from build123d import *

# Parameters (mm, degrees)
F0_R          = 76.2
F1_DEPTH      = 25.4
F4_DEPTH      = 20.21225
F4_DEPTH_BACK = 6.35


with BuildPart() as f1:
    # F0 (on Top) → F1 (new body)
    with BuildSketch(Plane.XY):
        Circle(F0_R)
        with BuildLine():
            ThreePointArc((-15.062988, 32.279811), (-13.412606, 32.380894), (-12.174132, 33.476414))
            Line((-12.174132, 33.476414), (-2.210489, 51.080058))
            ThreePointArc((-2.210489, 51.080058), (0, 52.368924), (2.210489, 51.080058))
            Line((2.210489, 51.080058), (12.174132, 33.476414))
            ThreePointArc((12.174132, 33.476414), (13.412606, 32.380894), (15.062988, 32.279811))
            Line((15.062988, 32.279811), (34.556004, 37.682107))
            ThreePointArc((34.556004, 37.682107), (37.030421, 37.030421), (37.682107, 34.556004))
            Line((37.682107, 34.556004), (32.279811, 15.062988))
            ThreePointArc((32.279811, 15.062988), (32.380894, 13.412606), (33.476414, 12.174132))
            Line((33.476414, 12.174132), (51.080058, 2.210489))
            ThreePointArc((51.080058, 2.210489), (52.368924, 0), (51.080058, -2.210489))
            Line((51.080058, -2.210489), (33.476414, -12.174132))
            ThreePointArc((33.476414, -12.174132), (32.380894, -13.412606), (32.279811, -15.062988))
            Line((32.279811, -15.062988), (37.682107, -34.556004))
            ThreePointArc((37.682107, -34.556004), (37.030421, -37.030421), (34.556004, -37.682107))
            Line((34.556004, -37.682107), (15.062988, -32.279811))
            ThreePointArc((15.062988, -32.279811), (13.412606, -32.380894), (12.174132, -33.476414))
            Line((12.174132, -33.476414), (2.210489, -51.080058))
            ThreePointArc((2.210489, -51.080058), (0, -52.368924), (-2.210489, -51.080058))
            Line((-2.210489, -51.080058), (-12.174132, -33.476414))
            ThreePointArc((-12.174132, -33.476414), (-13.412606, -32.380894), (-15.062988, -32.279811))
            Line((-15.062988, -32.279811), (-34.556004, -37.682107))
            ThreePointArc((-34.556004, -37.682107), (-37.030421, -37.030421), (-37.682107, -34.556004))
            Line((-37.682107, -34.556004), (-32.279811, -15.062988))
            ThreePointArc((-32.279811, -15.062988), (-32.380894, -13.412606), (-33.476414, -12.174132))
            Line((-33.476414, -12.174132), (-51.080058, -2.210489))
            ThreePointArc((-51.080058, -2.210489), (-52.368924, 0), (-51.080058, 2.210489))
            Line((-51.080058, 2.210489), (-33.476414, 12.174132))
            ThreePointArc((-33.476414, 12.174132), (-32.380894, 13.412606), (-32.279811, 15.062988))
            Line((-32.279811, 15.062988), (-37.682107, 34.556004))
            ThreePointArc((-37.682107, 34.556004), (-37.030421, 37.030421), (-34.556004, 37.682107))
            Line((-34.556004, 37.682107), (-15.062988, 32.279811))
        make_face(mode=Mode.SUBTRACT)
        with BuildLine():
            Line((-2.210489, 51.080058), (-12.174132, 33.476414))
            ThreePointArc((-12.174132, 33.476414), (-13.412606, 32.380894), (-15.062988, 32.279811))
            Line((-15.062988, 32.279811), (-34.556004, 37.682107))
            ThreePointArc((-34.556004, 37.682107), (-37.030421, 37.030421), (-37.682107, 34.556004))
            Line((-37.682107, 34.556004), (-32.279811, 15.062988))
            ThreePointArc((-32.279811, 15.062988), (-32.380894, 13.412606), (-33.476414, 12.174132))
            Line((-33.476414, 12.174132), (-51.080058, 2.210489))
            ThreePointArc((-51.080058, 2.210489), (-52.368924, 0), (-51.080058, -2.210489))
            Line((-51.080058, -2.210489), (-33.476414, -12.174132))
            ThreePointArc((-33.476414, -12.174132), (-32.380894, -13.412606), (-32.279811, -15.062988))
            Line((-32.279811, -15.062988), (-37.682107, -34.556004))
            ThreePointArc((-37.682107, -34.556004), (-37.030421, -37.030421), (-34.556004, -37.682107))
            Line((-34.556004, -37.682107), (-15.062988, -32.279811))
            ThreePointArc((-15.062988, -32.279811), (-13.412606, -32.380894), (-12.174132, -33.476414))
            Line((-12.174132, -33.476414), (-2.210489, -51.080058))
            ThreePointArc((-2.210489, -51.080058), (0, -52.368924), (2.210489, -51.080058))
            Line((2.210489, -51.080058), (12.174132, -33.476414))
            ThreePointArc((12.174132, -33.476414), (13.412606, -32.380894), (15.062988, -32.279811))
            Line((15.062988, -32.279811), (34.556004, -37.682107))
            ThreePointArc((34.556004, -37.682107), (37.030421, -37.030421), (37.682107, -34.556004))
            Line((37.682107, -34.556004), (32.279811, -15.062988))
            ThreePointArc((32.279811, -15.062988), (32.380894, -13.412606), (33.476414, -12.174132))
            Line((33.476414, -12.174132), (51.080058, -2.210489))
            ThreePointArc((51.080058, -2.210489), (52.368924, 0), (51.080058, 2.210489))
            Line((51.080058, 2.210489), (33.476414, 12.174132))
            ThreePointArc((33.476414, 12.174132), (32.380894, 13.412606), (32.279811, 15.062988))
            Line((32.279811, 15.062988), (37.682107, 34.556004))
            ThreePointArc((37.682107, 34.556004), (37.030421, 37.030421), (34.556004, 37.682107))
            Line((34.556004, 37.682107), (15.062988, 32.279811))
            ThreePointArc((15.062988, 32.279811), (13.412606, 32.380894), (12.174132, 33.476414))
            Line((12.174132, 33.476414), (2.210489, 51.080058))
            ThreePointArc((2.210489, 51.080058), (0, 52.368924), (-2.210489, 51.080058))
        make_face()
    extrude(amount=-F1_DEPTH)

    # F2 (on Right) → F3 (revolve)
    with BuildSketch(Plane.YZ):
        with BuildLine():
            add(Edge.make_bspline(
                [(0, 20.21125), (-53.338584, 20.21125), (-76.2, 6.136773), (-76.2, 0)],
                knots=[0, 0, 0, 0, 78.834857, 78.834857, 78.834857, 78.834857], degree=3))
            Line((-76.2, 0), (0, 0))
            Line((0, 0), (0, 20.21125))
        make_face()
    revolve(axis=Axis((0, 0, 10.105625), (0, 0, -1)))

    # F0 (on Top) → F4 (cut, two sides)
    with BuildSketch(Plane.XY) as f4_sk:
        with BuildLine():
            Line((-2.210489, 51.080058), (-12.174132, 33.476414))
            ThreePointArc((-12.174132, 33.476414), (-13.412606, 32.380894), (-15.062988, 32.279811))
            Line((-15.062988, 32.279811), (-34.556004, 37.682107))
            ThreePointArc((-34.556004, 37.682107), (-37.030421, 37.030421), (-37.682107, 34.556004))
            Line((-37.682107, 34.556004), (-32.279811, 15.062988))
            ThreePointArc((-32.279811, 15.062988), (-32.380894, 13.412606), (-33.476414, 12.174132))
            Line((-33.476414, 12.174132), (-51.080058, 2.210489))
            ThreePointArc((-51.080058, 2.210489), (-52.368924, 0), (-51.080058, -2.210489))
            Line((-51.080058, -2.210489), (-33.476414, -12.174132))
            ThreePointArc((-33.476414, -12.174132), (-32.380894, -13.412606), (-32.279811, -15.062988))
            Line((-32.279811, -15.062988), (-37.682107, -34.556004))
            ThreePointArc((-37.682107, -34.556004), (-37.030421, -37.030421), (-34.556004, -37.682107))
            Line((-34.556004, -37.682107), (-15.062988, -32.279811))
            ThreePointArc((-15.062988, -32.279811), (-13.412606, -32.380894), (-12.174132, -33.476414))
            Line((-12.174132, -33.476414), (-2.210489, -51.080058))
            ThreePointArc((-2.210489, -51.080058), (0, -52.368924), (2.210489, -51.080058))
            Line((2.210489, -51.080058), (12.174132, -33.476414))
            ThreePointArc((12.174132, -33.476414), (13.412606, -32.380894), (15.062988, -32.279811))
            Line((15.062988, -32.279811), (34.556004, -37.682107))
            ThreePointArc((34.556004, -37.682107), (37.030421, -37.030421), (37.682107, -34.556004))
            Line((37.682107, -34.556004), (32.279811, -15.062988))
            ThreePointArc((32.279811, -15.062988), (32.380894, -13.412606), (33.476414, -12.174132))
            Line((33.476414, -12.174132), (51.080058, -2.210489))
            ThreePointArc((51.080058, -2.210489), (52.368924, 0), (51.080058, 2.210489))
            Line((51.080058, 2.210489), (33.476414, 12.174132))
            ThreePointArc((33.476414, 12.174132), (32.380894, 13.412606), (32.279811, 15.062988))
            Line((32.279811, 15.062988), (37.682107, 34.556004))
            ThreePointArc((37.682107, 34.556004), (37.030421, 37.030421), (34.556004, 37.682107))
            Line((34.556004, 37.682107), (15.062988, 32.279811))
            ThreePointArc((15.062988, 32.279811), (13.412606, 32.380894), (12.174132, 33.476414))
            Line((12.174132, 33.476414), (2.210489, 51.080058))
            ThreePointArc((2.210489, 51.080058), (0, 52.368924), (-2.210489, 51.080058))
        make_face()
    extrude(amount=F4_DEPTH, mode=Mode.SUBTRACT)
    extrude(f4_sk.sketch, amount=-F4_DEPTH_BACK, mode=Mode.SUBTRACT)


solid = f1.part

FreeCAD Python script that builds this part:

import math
import FreeCAD as App
import Part
import Sketcher
from FreeCAD import Vector
Q = App.Units.Quantity

doc = App.newDocument("Part")
body = doc.addObject("PartDesign::Body", "Body")

sketch1 = body.newObject("Sketcher::SketchObject", "Sketch")
sketch1.AttachmentSupport = (doc.getObject("XY_Plane"), [""])
sketch1.MapMode = "FlatFace"
sketch1.addGeometry(Part.Circle(Vector(0, 0, 0), Vector(0, 0, 1), 76), False)
sketch1.addConstraint([
    Sketcher.Constraint("Coincident", 0, 3, -1, 1),
    Sketcher.Constraint("Diameter", 0, Q("6 in")),
])
pad1 = body.newObject("PartDesign::Pad", "Pad")
pad1.Profile = sketch1
pad1.Length = Q("1 in")
pad1.Reversed = True

sketch2 = body.newObject("Sketcher::SketchObject", "Sketch001")
sketch2.AttachmentSupport = (doc.getObject("YZ_Plane"), [""])
sketch2.MapMode = "FlatFace"
sketch2.addGeometry([
    Part.BSplineCurve([Vector(0, 20.21125, 0), Vector(-53.338584, 20.21125, 0), Vector(-76.2, 6.136773, 0), Vector(-76.2, 0, 0)], [4, 4], [0, 78.834857], False, 3, [1, 1, 1, 1], False),
    Part.LineSegment(Vector(-76.2, 0, 0), Vector(0, 0, 0)),
    Part.LineSegment(Vector(0, 0, 0), Vector(0, 20.21125, 0)),
], False)
sketch2.addConstraint([
    Sketcher.Constraint("Block", 0),
    Sketcher.Constraint("Coincident", 0, 2, 1, 1),
    Sketcher.Constraint("Coincident", 1, 2, 2, 1),
    Sketcher.Constraint("Coincident", 2, 2, 0, 1),
    Sketcher.Constraint("Horizontal", 1),
    Sketcher.Constraint("Vertical", 2),
])
revolution = body.newObject("PartDesign::Revolution", "Revolution")
revolution.Profile = sketch2
revolution.ReferenceAxis = (sketch2, ["V_Axis"])
revolution.Angle = 360

sketch3 = body.newObject("Sketcher::SketchObject", "Sketch002")
sketch3.AttachmentSupport = (doc.getObject("XY_Plane"), [""])
sketch3.MapMode = "FlatFace"
sketch3.addGeometry([
    Part.LineSegment(Vector(-2.2, 51.1, 0), Vector(-12.2, 33.5, 0)),
    Part.ArcOfCircle(Part.Circle(Vector(-14.4, 34.7, 0), Vector(0, 0, 1), 2.5), math.radians(-105), math.radians(-30)),
    Part.LineSegment(Vector(-15.1, 32.3, 0), Vector(-34.6, 37.7, 0)),
    Part.ArcOfCircle(Part.Circle(Vector(-35.2, 35.2, 0), Vector(0, 0, 1), 2.5), math.radians(75), math.radians(195)),
    Part.LineSegment(Vector(-37.7, 34.6, 0), Vector(-32.3, 15.1, 0)),
    Part.ArcOfCircle(Part.Circle(Vector(-34.7, 14.4, 0), Vector(0, 0, 1), 2.5), math.radians(-60), math.radians(15)),
    Part.LineSegment(Vector(-33.5, 12.2, 0), Vector(-51.1, 2.2, 0)),
    Part.ArcOfCircle(Part.Circle(Vector(-49.8, 0, 0), Vector(0, 0, 1), 2.5), math.radians(120), math.radians(240)),
    Part.LineSegment(Vector(-51.1, -2.2, 0), Vector(-33.5, -12.2, 0)),
    Part.ArcOfCircle(Part.Circle(Vector(-34.7, -14.4, 0), Vector(0, 0, 1), 2.5), math.radians(-15), math.radians(60)),
    Part.LineSegment(Vector(-32.3, -15.1, 0), Vector(-37.7, -34.6, 0)),
    Part.ArcOfCircle(Part.Circle(Vector(-35.2, -35.2, 0), Vector(0, 0, 1), 2.5), math.radians(165), math.radians(285)),
    Part.LineSegment(Vector(-34.6, -37.7, 0), Vector(-15.1, -32.3, 0)),
    Part.ArcOfCircle(Part.Circle(Vector(-14.4, -34.7, 0), Vector(0, 0, 1), 2.5), math.radians(30), math.radians(105)),
    Part.LineSegment(Vector(-12.2, -33.5, 0), Vector(-2.2, -51.1, 0)),
    Part.ArcOfCircle(Part.Circle(Vector(0, -49.8, 0), Vector(0, 0, 1), 2.5), math.radians(-150), math.radians(-30)),
    Part.LineSegment(Vector(2.2, -51.1, 0), Vector(12.2, -33.5, 0)),
    Part.ArcOfCircle(Part.Circle(Vector(14.4, -34.7, 0), Vector(0, 0, 1), 2.5), math.radians(75), math.radians(150)),
    Part.LineSegment(Vector(15.1, -32.3, 0), Vector(34.6, -37.7, 0)),
    Part.ArcOfCircle(Part.Circle(Vector(35.2, -35.2, 0), Vector(0, 0, 1), 2.5), math.radians(-105), math.radians(15)),
    Part.LineSegment(Vector(37.7, -34.6, 0), Vector(32.3, -15.1, 0)),
    Part.ArcOfCircle(Part.Circle(Vector(34.7, -14.4, 0), Vector(0, 0, 1), 2.5), math.radians(120), math.radians(195)),
    Part.LineSegment(Vector(33.5, -12.2, 0), Vector(51.1, -2.2, 0)),
    Part.ArcOfCircle(Part.Circle(Vector(49.8, 0, 0), Vector(0, 0, 1), 2.5), math.radians(-60), math.radians(60)),
    Part.LineSegment(Vector(51.1, 2.2, 0), Vector(33.5, 12.2, 0)),
    Part.ArcOfCircle(Part.Circle(Vector(34.7, 14.4, 0), Vector(0, 0, 1), 2.5), math.radians(165), math.radians(240)),
    Part.LineSegment(Vector(32.3, 15.1, 0), Vector(37.7, 34.6, 0)),
    Part.ArcOfCircle(Part.Circle(Vector(35.2, 35.2, 0), Vector(0, 0, 1), 2.5), math.radians(-15), math.radians(105)),
    Part.LineSegment(Vector(34.6, 37.7, 0), Vector(15.1, 32.3, 0)),
    Part.ArcOfCircle(Part.Circle(Vector(14.4, 34.7, 0), Vector(0, 0, 1), 2.5), math.radians(-150), math.radians(-75)),
    Part.LineSegment(Vector(12.2, 33.5, 0), Vector(2.2, 51.1, 0)),
    Part.ArcOfCircle(Part.Circle(Vector(0, 49.8, 0), Vector(0, 0, 1), 2.5), math.radians(30), math.radians(150)),
], False)
sketch3.addConstraint([
    Sketcher.Constraint("Tangent", 0, 2, 1, 2),
    Sketcher.Constraint("Tangent", 1, 1, 2, 1),
    Sketcher.Constraint("Tangent", 2, 2, 3, 1),
    Sketcher.Constraint("Tangent", 3, 2, 4, 1),
    Sketcher.Constraint("Tangent", 4, 2, 5, 2),
    Sketcher.Constraint("Tangent", 5, 1, 6, 1),
    Sketcher.Constraint("Tangent", 6, 2, 7, 1),
    Sketcher.Constraint("Tangent", 7, 2, 8, 1),
    Sketcher.Constraint("Tangent", 8, 2, 9, 2),
    Sketcher.Constraint("Tangent", 9, 1, 10, 1),
    Sketcher.Constraint("Tangent", 10, 2, 11, 1),
    Sketcher.Constraint("Tangent", 11, 2, 12, 1),
    Sketcher.Constraint("Tangent", 12, 2, 13, 2),
    Sketcher.Constraint("Tangent", 13, 1, 14, 1),
    Sketcher.Constraint("Tangent", 14, 2, 15, 1),
    Sketcher.Constraint("Tangent", 15, 2, 16, 1),
    Sketcher.Constraint("Tangent", 16, 2, 17, 2),
    Sketcher.Constraint("Tangent", 17, 1, 18, 1),
    Sketcher.Constraint("Tangent", 18, 2, 19, 1),
    Sketcher.Constraint("Tangent", 19, 2, 20, 1),
    Sketcher.Constraint("Tangent", 20, 2, 21, 2),
    Sketcher.Constraint("Tangent", 21, 1, 22, 1),
    Sketcher.Constraint("Tangent", 22, 2, 23, 1),
    Sketcher.Constraint("Tangent", 23, 2, 24, 1),
    Sketcher.Constraint("Tangent", 24, 2, 25, 2),
    Sketcher.Constraint("Tangent", 25, 1, 26, 1),
    Sketcher.Constraint("Tangent", 26, 2, 27, 1),
    Sketcher.Constraint("Tangent", 27, 2, 28, 1),
    Sketcher.Constraint("Tangent", 28, 2, 29, 2),
    Sketcher.Constraint("Tangent", 29, 1, 30, 1),
    Sketcher.Constraint("Tangent", 30, 2, 31, 1),
    Sketcher.Constraint("Tangent", 31, 2, 0, 1),
    Sketcher.Constraint("Equal", 1, 3),
    Sketcher.Constraint("Equal", 3, 5),
    Sketcher.Constraint("Equal", 5, 7),
    Sketcher.Constraint("Equal", 7, 9),
    Sketcher.Constraint("Equal", 9, 11),
    Sketcher.Constraint("Equal", 11, 13),
    Sketcher.Constraint("Equal", 13, 15),
    Sketcher.Constraint("Equal", 15, 17),
    Sketcher.Constraint("Equal", 17, 19),
    Sketcher.Constraint("Equal", 19, 21),
    Sketcher.Constraint("Equal", 21, 23),
    Sketcher.Constraint("Equal", 23, 25),
    Sketcher.Constraint("Equal", 25, 27),
    Sketcher.Constraint("Equal", 27, 29),
    Sketcher.Constraint("Equal", 29, 31),
    Sketcher.Constraint("Symmetric", 1, 3, 17, 3, -1, 1),
    Sketcher.Constraint("Symmetric", 3, 3, 19, 3, -1, 1),
    Sketcher.Constraint("Symmetric", 5, 3, 21, 3, -1, 1),
    Sketcher.Constraint("Symmetric", 7, 3, 23, 3, -1, 1),
    Sketcher.Constraint("Symmetric", 9, 3, 25, 3, -1, 1),
    Sketcher.Constraint("Symmetric", 11, 3, 27, 3, -1, 1),
    Sketcher.Constraint("Symmetric", 13, 3, 29, 3, -1, 1),
    Sketcher.Constraint("Symmetric", 15, 3, 31, 3, -1, 1),
    Sketcher.Constraint("Symmetric", 13, 3, 17, 3, -2),
    Sketcher.Constraint("Symmetric", 11, 3, 19, 3, -2),
    Sketcher.Constraint("Symmetric", 9, 3, 21, 3, -2),
    Sketcher.Constraint("PointOnObject", 7, 3, -1),
    Sketcher.Constraint("PointOnObject", 15, 3, -2),
    Sketcher.Constraint("Perpendicular", 0, 8),
    Sketcher.Constraint("Perpendicular", 2, 10),
    Sketcher.Constraint("Equal", 0, 2),
    Sketcher.Constraint("Equal", 2, 4),
    Sketcher.Constraint("Equal", 4, 6),
    Sketcher.Constraint("Radius", 1, Q("0.1 in")),
    Sketcher.Constraint("DistanceY", 6, 2, 4, 2, Q("12.852499 mm")),
    Sketcher.Constraint("DistanceX", 1, 3, -1, 1, Q("14.384621 mm")),
    Sketcher.Constraint("DistanceX", 3, 3, -1, 1, Q("35.23437 mm")),
])
pocket1 = body.newObject("PartDesign::Pocket", "Pocket")
pocket1.Profile = sketch3
pocket1.Type = "TwoLengths"
pocket1.Length = 20.21225
pocket1.Length2 = Q("0.25 in")
pocket1.Reversed = True

doc.recompute()
